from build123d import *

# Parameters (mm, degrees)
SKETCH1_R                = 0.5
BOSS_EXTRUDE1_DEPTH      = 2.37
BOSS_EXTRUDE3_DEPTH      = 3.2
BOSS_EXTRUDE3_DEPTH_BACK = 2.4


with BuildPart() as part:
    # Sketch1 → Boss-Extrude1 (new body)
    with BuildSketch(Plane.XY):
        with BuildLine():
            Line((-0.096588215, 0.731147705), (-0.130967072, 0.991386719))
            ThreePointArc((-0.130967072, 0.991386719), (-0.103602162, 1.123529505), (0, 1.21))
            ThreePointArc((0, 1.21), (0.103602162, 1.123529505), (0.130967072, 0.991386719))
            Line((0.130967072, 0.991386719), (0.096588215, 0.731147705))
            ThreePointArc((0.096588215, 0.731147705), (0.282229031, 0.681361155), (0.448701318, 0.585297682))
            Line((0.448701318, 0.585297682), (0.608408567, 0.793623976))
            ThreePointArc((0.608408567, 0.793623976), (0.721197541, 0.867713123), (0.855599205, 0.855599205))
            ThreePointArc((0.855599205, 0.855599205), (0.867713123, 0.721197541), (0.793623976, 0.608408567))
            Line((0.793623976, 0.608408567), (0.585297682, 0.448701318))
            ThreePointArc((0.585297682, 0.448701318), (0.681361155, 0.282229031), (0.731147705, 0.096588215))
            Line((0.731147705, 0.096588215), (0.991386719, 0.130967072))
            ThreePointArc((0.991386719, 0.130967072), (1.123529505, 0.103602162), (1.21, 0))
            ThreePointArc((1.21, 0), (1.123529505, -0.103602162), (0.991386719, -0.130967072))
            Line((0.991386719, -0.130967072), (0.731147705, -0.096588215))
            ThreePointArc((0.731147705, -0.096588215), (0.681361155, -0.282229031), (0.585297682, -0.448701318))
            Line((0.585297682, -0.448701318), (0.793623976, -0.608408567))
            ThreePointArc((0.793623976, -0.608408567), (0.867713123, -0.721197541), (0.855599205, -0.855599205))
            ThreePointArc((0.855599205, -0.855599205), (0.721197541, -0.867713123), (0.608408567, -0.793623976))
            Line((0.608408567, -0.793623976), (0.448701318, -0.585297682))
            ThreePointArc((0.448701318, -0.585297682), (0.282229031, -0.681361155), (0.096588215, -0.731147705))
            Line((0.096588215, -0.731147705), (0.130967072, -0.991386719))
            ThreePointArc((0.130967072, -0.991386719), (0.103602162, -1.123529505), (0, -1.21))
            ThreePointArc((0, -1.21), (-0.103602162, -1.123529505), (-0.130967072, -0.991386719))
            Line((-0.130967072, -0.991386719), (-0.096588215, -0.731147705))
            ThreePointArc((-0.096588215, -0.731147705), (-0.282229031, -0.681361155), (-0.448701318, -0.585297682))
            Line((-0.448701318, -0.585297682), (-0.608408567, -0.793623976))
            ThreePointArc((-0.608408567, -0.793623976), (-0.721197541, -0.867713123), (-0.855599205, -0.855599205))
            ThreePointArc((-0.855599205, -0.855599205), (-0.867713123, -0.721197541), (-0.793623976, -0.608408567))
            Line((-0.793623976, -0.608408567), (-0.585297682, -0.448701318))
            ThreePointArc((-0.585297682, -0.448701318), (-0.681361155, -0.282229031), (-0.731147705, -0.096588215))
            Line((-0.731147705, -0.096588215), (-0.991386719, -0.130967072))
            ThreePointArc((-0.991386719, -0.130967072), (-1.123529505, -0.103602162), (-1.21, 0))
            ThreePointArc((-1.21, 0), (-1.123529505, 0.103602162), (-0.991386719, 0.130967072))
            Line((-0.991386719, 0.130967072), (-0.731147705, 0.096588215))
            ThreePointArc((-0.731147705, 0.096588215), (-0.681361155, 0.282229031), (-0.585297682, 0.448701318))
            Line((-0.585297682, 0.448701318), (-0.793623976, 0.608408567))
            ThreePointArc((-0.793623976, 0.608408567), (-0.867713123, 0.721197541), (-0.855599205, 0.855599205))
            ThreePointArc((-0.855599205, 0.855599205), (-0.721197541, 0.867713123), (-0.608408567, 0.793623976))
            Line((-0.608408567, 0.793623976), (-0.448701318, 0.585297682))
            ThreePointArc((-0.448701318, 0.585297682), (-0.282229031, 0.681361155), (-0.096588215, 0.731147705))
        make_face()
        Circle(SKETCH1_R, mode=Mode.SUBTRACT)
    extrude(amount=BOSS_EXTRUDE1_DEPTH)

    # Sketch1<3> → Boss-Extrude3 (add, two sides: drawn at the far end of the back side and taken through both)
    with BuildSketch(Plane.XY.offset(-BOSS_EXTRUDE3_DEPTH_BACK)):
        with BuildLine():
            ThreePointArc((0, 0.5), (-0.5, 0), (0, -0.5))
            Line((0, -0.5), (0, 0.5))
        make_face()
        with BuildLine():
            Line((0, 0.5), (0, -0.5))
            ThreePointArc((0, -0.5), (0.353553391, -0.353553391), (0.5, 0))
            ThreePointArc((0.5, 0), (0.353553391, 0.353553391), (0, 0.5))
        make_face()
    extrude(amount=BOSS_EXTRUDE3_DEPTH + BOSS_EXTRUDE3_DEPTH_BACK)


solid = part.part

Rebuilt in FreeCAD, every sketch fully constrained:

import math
import FreeCAD as App
import Part
import Sketcher
from FreeCAD import Vector
Q = App.Units.Quantity

doc = App.newDocument("Part")
params = doc.addObject("Spreadsheet::Sheet", "Params")
for row, (alias, value) in enumerate([
    ("sketch1_diameter", "1 mm"),
    ("pad1_length", "2.37 mm"),
    ("sketch2_radius", "0.5 mm"),
    ("pad2_length", "3.2 mm"),
    ("pad2_length2", "2.4 mm"),
], start=1):
    params.set(f"A{row}", alias)
    params.set(f"B{row}", "=" + value)
    params.setAlias(f"B{row}", alias)

body = doc.addObject("PartDesign::Body", "Body")

# Sketch on XY plane
sketch1 = doc.addObject("Sketcher::SketchObject", "Sketch")
body.addObject(sketch1)
sketch1.AttachmentSupport = (doc.XY_Plane, [""])
sketch1.MapMode = "FlatFace"
sketch1.addGeometry([
    Part.LineSegment(Vector(-0.13, 0.99, 0), Vector(-0.1, 0.73, 0)),  # 0
    Part.ArcOfCircle(Part.Circle(Vector(0, 0, 0), Vector(0, 0, 1), 0.74), math.radians(98), math.radians(127)),  # 1
    Part.LineSegment(Vector(-0.45, 0.59, 0), Vector(-0.61, 0.79, 0)),  # 2
    Part.ArcOfCircle(Part.Circle(Vector(-0.77, 0.67, 0), Vector(0, 0, 1), 0.2), math.radians(37), math.radians(114)),  # 3
    Part.ArcOfCircle(Part.Circle(Vector(-0.67, 0.77, 0), Vector(0, 0, 1), 0.2), math.radians(156), math.radians(233)),  # 4
    Part.LineSegment(Vector(-0.79, 0.61, 0), Vector(-0.59, 0.45, 0)),  # 5
    Part.ArcOfCircle(Part.Circle(Vector(0, 0, 0), Vector(0, 0, 1), 0.74), math.radians(143), math.radians(172)),  # 6
    Part.LineSegment(Vector(-0.73, 0.1, 0), Vector(-0.99, 0.13, 0)),  # 7
    Part.ArcOfCircle(Part.Circle(Vector(-1.02, -0.07, 0), Vector(0, 0, 1), 0.2), math.radians(82), math.radians(159)),  # 8
    Part.ArcOfCircle(Part.Circle(Vector(-1.02, 0.07, 0), Vector(0, 0, 1), 0.2), math.radians(-159), math.radians(-82)),  # 9
    Part.LineSegment(Vector(-0.99, -0.13, 0), Vector(-0.73, -0.1, 0)),  # 10
    Part.ArcOfCircle(Part.Circle(Vector(0, 0, 0), Vector(0, 0, 1), 0.74), math.radians(-172), math.radians(-143)),  # 11
    Part.LineSegment(Vector(-0.59, -0.45, 0), Vector(-0.79, -0.61, 0)),  # 12
    Part.ArcOfCircle(Part.Circle(Vector(-0.67, -0.77, 0), Vector(0, 0, 1), 0.2), math.radians(127), math.radians(204)),  # 13
    Part.ArcOfCircle(Part.Circle(Vector(-0.77, -0.67, 0), Vector(0, 0, 1), 0.2), math.radians(-114), math.radians(-37)),  # 14
    Part.LineSegment(Vector(-0.61, -0.79, 0), Vector(-0.45, -0.59, 0)),  # 15
    Part.ArcOfCircle(Part.Circle(Vector(0, 0, 0), Vector(0, 0, 1), 0.74), math.radians(-127), math.radians(-98)),  # 16
    Part.LineSegment(Vector(-0.1, -0.73, 0), Vector(-0.13, -0.99, 0)),  # 17
    Part.ArcOfCircle(Part.Circle(Vector(0.07, -1.02, 0), Vector(0, 0, 1), 0.2), math.radians(172), math.radians(249)),  # 18
    Part.ArcOfCircle(Part.Circle(Vector(-0.07, -1.02, 0), Vector(0, 0, 1), 0.2), math.radians(-69), math.radians(8)),  # 19
    Part.LineSegment(Vector(0.13, -0.99, 0), Vector(0.1, -0.73, 0)),  # 20
    Part.ArcOfCircle(Part.Circle(Vector(0, 0, 0), Vector(0, 0, 1), 0.74), math.radians(-82), math.radians(-53)),  # 21
    Part.LineSegment(Vector(0.45, -0.59, 0), Vector(0.61, -0.79, 0)),  # 22
    Part.ArcOfCircle(Part.Circle(Vector(0.77, -0.67, 0), Vector(0, 0, 1), 0.2), math.radians(-143), math.radians(-66)),  # 23
    Part.ArcOfCircle(Part.Circle(Vector(0.67, -0.77, 0), Vector(0, 0, 1), 0.2), math.radians(-24), math.radians(53)),  # 24
    Part.LineSegment(Vector(0.79, -0.61, 0), Vector(0.59, -0.45, 0)),  # 25
    Part.ArcOfCircle(Part.Circle(Vector(0, 0, 0), Vector(0, 0, 1), 0.74), math.radians(-37), math.radians(-8)),  # 26
    Part.LineSegment(Vector(0.73, -0.1, 0), Vector(0.99, -0.13, 0)),  # 27
    Part.ArcOfCircle(Part.Circle(Vector(1.02, 0.07, 0), Vector(0, 0, 1), 0.2), math.radians(-98), math.radians(-21)),  # 28
    Part.ArcOfCircle(Part.Circle(Vector(1.02, -0.07, 0), Vector(0, 0, 1), 0.2), math.radians(21), math.radians(98)),  # 29
    Part.LineSegment(Vector(0.99, 0.13, 0), Vector(0.73, 0.1, 0)),  # 30
    Part.ArcOfCircle(Part.Circle(Vector(0, 0, 0), Vector(0, 0, 1), 0.74), math.radians(8), math.radians(37)),  # 31
    Part.LineSegment(Vector(0.59, 0.45, 0), Vector(0.79, 0.61, 0)),  # 32
    Part.ArcOfCircle(Part.Circle(Vector(0.67, 0.77, 0), Vector(0, 0, 1), 0.2), math.radians(-53), math.radians(24)),  # 33
    Part.ArcOfCircle(Part.Circle(Vector(0.77, 0.67, 0), Vector(0, 0, 1), 0.2), math.radians(66), math.radians(143)),  # 34
    Part.LineSegment(Vector(0.61, 0.79, 0), Vector(0.45, 0.59, 0)),  # 35
    Part.ArcOfCircle(Part.Circle(Vector(0, 0, 0), Vector(0, 0, 1), 0.74), math.radians(53), math.radians(82)),  # 36
    Part.LineSegment(Vector(0.1, 0.73, 0), Vector(0.13, 0.99, 0)),  # 37
    Part.ArcOfCircle(Part.Circle(Vector(-0.07, 1.02, 0), Vector(0, 0, 1), 0.2), math.radians(-8), math.radians(69)),  # 38
    Part.ArcOfCircle(Part.Circle(Vector(0.07, 1.02, 0), Vector(0, 0, 1), 0.2), math.radians(111), math.radians(188)),  # 39
    Part.Circle(Vector(0, 0, 0), Vector(0, 0, 1), 0.5),  # 40
], False)
sketch1.addConstraint([
    Sketcher.Constraint("Coincident", 0, 2, 1, 1),
    Sketcher.Constraint("Coincident", 1, 2, 2, 1),
    Sketcher.Constraint("Tangent", 2, 2, 3, 1),
    Sketcher.Constraint("Coincident", 3, 2, 4, 1),
    Sketcher.Constraint("Tangent", 4, 2, 5, 1),
    Sketcher.Constraint("Coincident", 5, 2, 6, 1),
    Sketcher.Constraint("Coincident", 6, 2, 7, 1),
    Sketcher.Constraint("Tangent", 7, 2, 8, 1),
    Sketcher.Constraint("Coincident", 8, 2, 9, 1),
    Sketcher.Constraint("Tangent", 9, 2, 10, 1),
    Sketcher.Constraint("Coincident", 10, 2, 11, 1),
    Sketcher.Constraint("Coincident", 11, 2, 12, 1),
    Sketcher.Constraint("Tangent", 12, 2, 13, 1),
    Sketcher.Constraint("Coincident", 13, 2, 14, 1),
    Sketcher.Constraint("Tangent", 14, 2, 15, 1),
    Sketcher.Constraint("Coincident", 15, 2, 16, 1),
    Sketcher.Constraint("Coincident", 16, 2, 17, 1),
    Sketcher.Constraint("Tangent", 17, 2, 18, 1),
    Sketcher.Constraint("Coincident", 18, 2, 19, 1),
    Sketcher.Constraint("Tangent", 19, 2, 20, 1),
    Sketcher.Constraint("Coincident", 20, 2, 21, 1),
    Sketcher.Constraint("Coincident", 21, 2, 22, 1),
    Sketcher.Constraint("Tangent", 22, 2, 23, 1),
    Sketcher.Constraint("Coincident", 23, 2, 24, 1),
    Sketcher.Constraint("Tangent", 24, 2, 25, 1),
    Sketcher.Constraint("Coincident", 25, 2, 26, 1),
    Sketcher.Constraint("Coincident", 26, 2, 27, 1),
    Sketcher.Constraint("Tangent", 27, 2, 28, 1),
    Sketcher.Constraint("Coincident", 28, 2, 29, 1),
    Sketcher.Constraint("Tangent", 29, 2, 30, 1),
    Sketcher.Constraint("Coincident", 30, 2, 31, 1),
    Sketcher.Constraint("Coincident", 31, 2, 32, 1),
    Sketcher.Constraint("Tangent", 32, 2, 33, 1),
    Sketcher.Constraint("Coincident", 33, 2, 34, 1),
    Sketcher.Constraint("Tangent", 34, 2, 35, 1),
    Sketcher.Constraint("Coincident", 35, 2, 36, 1),
    Sketcher.Constraint("Coincident", 36, 2, 37, 1),
    Sketcher.Constraint("Tangent", 37, 2, 38, 1),
    Sketcher.Constraint("Coincident", 38, 2, 39, 1),
    Sketcher.Constraint("Tangent", 39, 2, 0, 1),
    Sketcher.Constraint("Coincident", 1, 3, -1, 1),
    Sketcher.Constraint("Coincident", 6, 3, -1, 1),
    Sketcher.Constraint("Coincident", 11, 3, -1, 1),
    Sketcher.Constraint("Coincident", 16, 3, -1, 1),
    Sketcher.Constraint("Coincident", 21, 3, -1, 1),
    Sketcher.Constraint("Coincident", 26, 3, -1, 1),
    Sketcher.Constraint("Coincident", 31, 3, -1, 1),
    Sketcher.Constraint("Coincident", 36, 3, -1, 1),
    Sketcher.Constraint("Coincident", 40, 3, -1, 1),
    Sketcher.Constraint("Equal", 3, 4),
    Sketcher.Constraint("Equal", 1, 6),
    Sketcher.Constraint("Equal", 4, 8),
    Sketcher.Constraint("Equal", 8, 9),
    Sketcher.Constraint("Equal", 6, 11),
    Sketcher.Constraint("Equal", 9, 13),
    Sketcher.Constraint("Equal", 13, 14),
    Sketcher.Constraint("Equal", 11, 16),
    Sketcher.Constraint("Equal", 14, 18),
    Sketcher.Constraint("Equal", 18, 19),
    Sketcher.Constraint("Equal", 16, 21),
    Sketcher.Constraint("Equal", 19, 23),
    Sketcher.Constraint("Equal", 23, 24),
    Sketcher.Constraint("Equal", 21, 26),
    Sketcher.Constraint("Equal", 24, 28),
    Sketcher.Constraint("Equal", 28, 29),
    Sketcher.Constraint("Equal", 26, 31),
    Sketcher.Constraint("Equal", 29, 33),
    Sketcher.Constraint("Equal", 33, 34),
    Sketcher.Constraint("Equal", 31, 36),
    Sketcher.Constraint("Equal", 34, 38),
    Sketcher.Constraint("Equal", 38, 39),
    Sketcher.Constraint("Symmetric", 3, 3, 23, 3, -1, 1),
    Sketcher.Constraint("Symmetric", 4, 3, 24, 3, -1, 1),
    Sketcher.Constraint("Symmetric", 8, 3, 28, 3, -1, 1),
    Sketcher.Constraint("Symmetric", 9, 3, 29, 3, -1, 1),
    Sketcher.Constraint("Symmetric", 13, 3, 33, 3, -1, 1),
    Sketcher.Constraint("Symmetric", 14, 3, 34, 3, -1, 1),
    Sketcher.Constraint("Symmetric", 18, 3, 38, 3, -1, 1),
    Sketcher.Constraint("Symmetric", 19, 3, 39, 3, -1, 1),
    Sketcher.Constraint("Symmetric", 18, 3, 19, 3, -2),
    Sketcher.Constraint("Symmetric", 14, 3, 23, 3, -2),
    Sketcher.Constraint("Symmetric", 13, 3, 24, 3, -2),
    Sketcher.Constraint("Symmetric", 9, 3, 28, 3, -2),
    Sketcher.Constraint("Perpendicular", 0, 10),
    Sketcher.Constraint("Perpendicular", 2, 12),
    Sketcher.Constraint("Perpendicular", 5, 15),
    Sketcher.Constraint("Perpendicular", 7, 17),
    Sketcher.Constraint("Perpendicular", 10, 20),
    Sketcher.Constraint("Perpendicular", 12, 22),
    Sketcher.Constraint("Perpendicular", 15, 25),
    Sketcher.Constraint("Perpendicular", 17, 27),
    Sketcher.Constraint("Perpendicular", 20, 30),
    Sketcher.Constraint("Perpendicular", 22, 32),
    Sketcher.Constraint("Perpendicular", 25, 35),
    Sketcher.Constraint("Perpendicular", 27, 37),
    Sketcher.Constraint("Horizontal", 17, 2, 19, 2),
    Sketcher.Constraint("Horizontal", 15, 2, 21, 2),
    Sketcher.Constraint("Equal", 0, 2),
    Sketcher.Constraint("Equal", 2, 5),
    Sketcher.Constraint("Equal", 5, 7),
    Sketcher.Constraint("Diameter", 40, Q("1 mm")),
    Sketcher.Constraint("Radius", 1, Q("0.7375 mm")),
    Sketcher.Constraint("DistanceX", 8, 2, -1, 1, Q("1.21 mm")),
    Sketcher.Constraint("DistanceY", 18, 2, -1, 1, Q("1.21 mm")),
    Sketcher.Constraint("Radius", 3, Q("0.20491 mm")),
    Sketcher.Constraint("Distance", 0, Q("0.2625 mm")),
    Sketcher.Constraint("DistanceX", 1, 2, -1, 1, Q("0.448701 mm")),
    Sketcher.Constraint("DistanceX", 3, 2, -1, 1, Q("0.855599 mm")),
    Sketcher.Constraint("DistanceY", -1, 1, 3, 2, Q("0.855599 mm")),
    Sketcher.Constraint("DistanceX", 0, 2, -1, 1, Q("0.096588 mm")),
])
sketch1.setExpression("Constraints[100]", "Params.sketch1_diameter")
pad1 = doc.addObject("PartDesign::Pad", "Pad")
body.addObject(pad1)
pad1.Profile = sketch1
pad1.setExpression("Length", "Params.pad1_length")

# Sketch on XY plane
sketch2 = doc.addObject("Sketcher::SketchObject", "Sketch001")
body.addObject(sketch2)
sketch2.AttachmentSupport = (doc.XY_Plane, [""])
sketch2.MapMode = "FlatFace"
sketch2.addGeometry([
    Part.ArcOfCircle(Part.Circle(Vector(0, 0, 0), Vector(0, 0, 1), 0.5), math.radians(90), math.radians(270)),
    Part.ArcOfCircle(Part.Circle(Vector(0, 0, 0), Vector(0, 0, 1), 0.5), math.radians(-90), math.radians(0)),
    Part.ArcOfCircle(Part.Circle(Vector(0, 0, 0), Vector(0, 0, 1), 0.5), math.radians(0), math.radians(90)),
], False)
sketch2.addConstraint([
    Sketcher.Constraint("Tangent", 0, 2, 1, 1),
    Sketcher.Constraint("Tangent", 1, 2, 2, 1),
    Sketcher.Constraint("Tangent", 2, 2, 0, 1),
    Sketcher.Constraint("Coincident", 0, 3, -1, 1),
    Sketcher.Constraint("PointOnObject", 0, 2, -2),
    Sketcher.Constraint("PointOnObject", 1, 2, -1),
    Sketcher.Constraint("PointOnObject", 2, 2, -2),
    Sketcher.Constraint("Radius", 0, Q("0.5 mm")),
])
sketch2.setExpression("Constraints[7]", "Params.sketch2_radius")
pad2 = doc.addObject("PartDesign::Pad", "Pad001")
body.addObject(pad2)
pad2.Profile = sketch2
pad2.Type = "TwoLengths"
pad2.setExpression("Length", "Params.pad2_length")
pad2.setExpression("Length2", "Params.pad2_length2")

doc.recompute()
